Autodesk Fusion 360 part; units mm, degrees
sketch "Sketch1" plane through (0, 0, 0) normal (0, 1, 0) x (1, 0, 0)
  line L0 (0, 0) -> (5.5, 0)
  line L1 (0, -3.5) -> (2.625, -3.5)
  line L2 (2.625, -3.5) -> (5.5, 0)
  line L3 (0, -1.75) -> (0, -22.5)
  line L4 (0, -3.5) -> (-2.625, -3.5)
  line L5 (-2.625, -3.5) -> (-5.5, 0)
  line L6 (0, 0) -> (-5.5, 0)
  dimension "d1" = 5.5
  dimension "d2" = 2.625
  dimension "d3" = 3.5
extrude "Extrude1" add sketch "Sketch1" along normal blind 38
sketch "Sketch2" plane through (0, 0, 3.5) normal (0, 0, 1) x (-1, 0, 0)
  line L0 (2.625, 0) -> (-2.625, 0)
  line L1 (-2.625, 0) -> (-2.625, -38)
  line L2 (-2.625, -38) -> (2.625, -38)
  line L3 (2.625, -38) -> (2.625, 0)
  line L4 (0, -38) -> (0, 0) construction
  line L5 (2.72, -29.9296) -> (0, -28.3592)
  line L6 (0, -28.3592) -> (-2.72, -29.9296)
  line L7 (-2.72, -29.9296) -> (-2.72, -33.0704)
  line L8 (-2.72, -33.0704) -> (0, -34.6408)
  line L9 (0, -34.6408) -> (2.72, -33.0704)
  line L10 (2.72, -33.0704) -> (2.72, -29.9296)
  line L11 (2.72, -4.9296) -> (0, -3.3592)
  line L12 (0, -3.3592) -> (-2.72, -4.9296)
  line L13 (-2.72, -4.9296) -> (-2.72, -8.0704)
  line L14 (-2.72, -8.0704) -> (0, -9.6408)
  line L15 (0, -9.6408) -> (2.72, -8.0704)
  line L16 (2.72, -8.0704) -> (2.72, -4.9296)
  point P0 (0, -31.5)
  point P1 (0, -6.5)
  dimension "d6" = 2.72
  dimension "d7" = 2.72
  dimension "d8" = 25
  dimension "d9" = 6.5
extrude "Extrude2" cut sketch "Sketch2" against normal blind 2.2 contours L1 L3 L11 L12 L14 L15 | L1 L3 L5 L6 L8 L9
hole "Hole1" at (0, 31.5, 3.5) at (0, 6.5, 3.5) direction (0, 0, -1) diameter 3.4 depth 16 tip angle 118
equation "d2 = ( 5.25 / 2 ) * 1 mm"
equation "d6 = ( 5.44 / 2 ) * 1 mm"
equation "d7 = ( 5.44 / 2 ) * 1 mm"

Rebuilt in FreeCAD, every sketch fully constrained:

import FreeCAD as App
import Part
import Sketcher
from FreeCAD import Vector
Q = App.Units.Quantity


def add_polygon(sketch, points):
    """Adds a closed chain of lines whose ends are joined by coincident constraints."""
    first, n = sketch.GeometryCount, len(points)
    for a, b in zip(points, points[1:] + points[:1]):
        sketch.addGeometry(Part.LineSegment(App.Vector(*a, 0), App.Vector(*b, 0)), False)
    for i in range(n):
        sketch.addConstraint(Sketcher.Constraint("Coincident", first + i, 2, first + (i + 1) % n, 1))

doc = App.newDocument("Part")
params = doc.addObject("Spreadsheet::Sheet", "Params")
for row, (alias, value) in enumerate([
    ("pad1_length", "38 mm"),
    ("pocket1_length", "2.2 mm"),
    ("sketch3_diameter", "3.4 mm"),
    ("hole_diameter", "3.4 mm"),
    ("hole_depth", "16 mm"),
], start=1):
    params.set(f"A{row}", alias)
    params.set(f"B{row}", "=" + value)
    params.setAlias(f"B{row}", alias)

body = doc.addObject("PartDesign::Body", "Body")

sketch1 = body.newObject("Sketcher::SketchObject", "Sketch")
sketch1.AttachmentSupport = (doc.getObject("XZ_Plane"), [""])
sketch1.MapMode = "FlatFace"
add_polygon(sketch1, [(5.5, 0), (-5.5, 0), (-2.625, 3.5), (2.625, 3.5)])
sketch1.addConstraint([
    Sketcher.Constraint("Horizontal", 0),
    Sketcher.Constraint("Horizontal", 2),
    Sketcher.Constraint("Symmetric", 0, 2, 3, 2, -1, 1),
    Sketcher.Constraint("Equal", 1, 3),
    Sketcher.Constraint("DistanceX", 0, 2, -1, 1, Q("5.5 mm")),
    Sketcher.Constraint("DistanceY", -1, 1, 1, 2, Q("3.5 mm")),
    Sketcher.Constraint("DistanceX", 1, 2, -1, 1, Q("2.625 mm")),
])
pad1 = body.newObject("PartDesign::Pad", "Pad")
pad1.Profile = sketch1
pad1.setExpression("Length", "Params.pad1_length")
pad1.Reversed = True

sketch2 = body.newObject("Sketcher::SketchObject", "Sketch001")
sketch2.AttachmentSupport = (doc.getObject("XY_Plane"), [""])
sketch2.MapMode = "FlatFace"
sketch2.AttachmentOffset = App.Placement(Vector(0, 0, 3.5), App.Rotation())
add_polygon(sketch2, [(-2.625, 8.125249), (-2.625, 4.874751), (0, 3.3592), (2.625, 4.874751), (2.625, 8.125249), (0, 9.6408)])
add_polygon(sketch2, [(-2.625, 33.125249), (-2.625, 29.874751), (0, 28.3592), (2.625, 29.874751), (2.625, 33.125249), (0, 34.6408)])
sketch2.addConstraint([
    Sketcher.Constraint("Vertical", 0),
    Sketcher.Constraint("Vertical", 3),
    Sketcher.Constraint("Vertical", 6),
    Sketcher.Constraint("Vertical", 9),
    Sketcher.Constraint("Symmetric", 0, 2, 2, 2, -2),
    Sketcher.Constraint("Symmetric", 6, 2, 8, 2, -2),
    Sketcher.Constraint("PointOnObject", 1, 2, -2),
    Sketcher.Constraint("PointOnObject", 4, 2, -2),
    Sketcher.Constraint("PointOnObject", 7, 2, -2),
    Sketcher.Constraint("PointOnObject", 10, 2, -2),
    Sketcher.Constraint("Parallel", 1, 4),
    Sketcher.Constraint("Parallel", 2, 5),
    Sketcher.Constraint("Parallel", 4, 7),
    Sketcher.Constraint("Parallel", 7, 10),
    Sketcher.Constraint("Parallel", 8, 11),
    Sketcher.Constraint("Vertical", 5, 2, 6, 2),
    Sketcher.Constraint("Equal", 3, 6),
    Sketcher.Constraint("DistanceY", 0, 2, 6, 2, Q("25 mm")),
    Sketcher.Constraint("Angle", 1, Q("-30 deg")),
    Sketcher.Constraint("DistanceX", 0, 2, 2, 2, Q("5.25 mm")),
    Sketcher.Constraint("DistanceY", 0, 2, 0, 1, Q("3.2505 mm")),
    Sketcher.Constraint("DistanceY", -1, 1, 0, 2, Q("4.8748 mm")),
])
pocket1 = body.newObject("PartDesign::Pocket", "Pocket")
pocket1.Profile = sketch2
pocket1.setExpression("Length", "Params.pocket1_length")

sketch3 = body.newObject("Sketcher::SketchObject", "Sketch002")
sketch3.AttachmentSupport = (doc.getObject("XY_Plane"), [""])
sketch3.MapMode = "FlatFace"
sketch3.AttachmentOffset = App.Placement(Vector(0, 0, 3.5), App.Rotation())
sketch3.addGeometry([
    Part.Circle(Vector(0, 31.5, 0), Vector(0, 0, 1), 1.7),
    Part.Circle(Vector(0, 6.5, 0), Vector(0, 0, 1), 1.7),
], False)
sketch3.addConstraint([
    Sketcher.Constraint("Equal", 0, 1),
    Sketcher.Constraint("PointOnObject", 0, 3, -2),
    Sketcher.Constraint("PointOnObject", 1, 3, -2),
    Sketcher.Constraint("Diameter", 0, Q("3.4 mm")),
    Sketcher.Constraint("DistanceY", 1, 3, 0, 3, Q("25 mm")),
    Sketcher.Constraint("DistanceY", -1, 1, 0, 3, Q("31.5 mm")),
])
sketch3.setExpression("Constraints[3]", "Params.sketch3_diameter")
doc.recompute()
hole = body.newObject("PartDesign::Hole", "Hole")
hole.Profile = sketch3
hole.ThreadType = "None"
hole.setExpression("Diameter", "Params.hole_diameter")
hole.DepthType = "Dimension"
hole.setExpression("Depth", "Params.hole_depth")
hole.DrillPoint = "Angled"
hole.DrillPointAngle = 118

doc.recompute()
